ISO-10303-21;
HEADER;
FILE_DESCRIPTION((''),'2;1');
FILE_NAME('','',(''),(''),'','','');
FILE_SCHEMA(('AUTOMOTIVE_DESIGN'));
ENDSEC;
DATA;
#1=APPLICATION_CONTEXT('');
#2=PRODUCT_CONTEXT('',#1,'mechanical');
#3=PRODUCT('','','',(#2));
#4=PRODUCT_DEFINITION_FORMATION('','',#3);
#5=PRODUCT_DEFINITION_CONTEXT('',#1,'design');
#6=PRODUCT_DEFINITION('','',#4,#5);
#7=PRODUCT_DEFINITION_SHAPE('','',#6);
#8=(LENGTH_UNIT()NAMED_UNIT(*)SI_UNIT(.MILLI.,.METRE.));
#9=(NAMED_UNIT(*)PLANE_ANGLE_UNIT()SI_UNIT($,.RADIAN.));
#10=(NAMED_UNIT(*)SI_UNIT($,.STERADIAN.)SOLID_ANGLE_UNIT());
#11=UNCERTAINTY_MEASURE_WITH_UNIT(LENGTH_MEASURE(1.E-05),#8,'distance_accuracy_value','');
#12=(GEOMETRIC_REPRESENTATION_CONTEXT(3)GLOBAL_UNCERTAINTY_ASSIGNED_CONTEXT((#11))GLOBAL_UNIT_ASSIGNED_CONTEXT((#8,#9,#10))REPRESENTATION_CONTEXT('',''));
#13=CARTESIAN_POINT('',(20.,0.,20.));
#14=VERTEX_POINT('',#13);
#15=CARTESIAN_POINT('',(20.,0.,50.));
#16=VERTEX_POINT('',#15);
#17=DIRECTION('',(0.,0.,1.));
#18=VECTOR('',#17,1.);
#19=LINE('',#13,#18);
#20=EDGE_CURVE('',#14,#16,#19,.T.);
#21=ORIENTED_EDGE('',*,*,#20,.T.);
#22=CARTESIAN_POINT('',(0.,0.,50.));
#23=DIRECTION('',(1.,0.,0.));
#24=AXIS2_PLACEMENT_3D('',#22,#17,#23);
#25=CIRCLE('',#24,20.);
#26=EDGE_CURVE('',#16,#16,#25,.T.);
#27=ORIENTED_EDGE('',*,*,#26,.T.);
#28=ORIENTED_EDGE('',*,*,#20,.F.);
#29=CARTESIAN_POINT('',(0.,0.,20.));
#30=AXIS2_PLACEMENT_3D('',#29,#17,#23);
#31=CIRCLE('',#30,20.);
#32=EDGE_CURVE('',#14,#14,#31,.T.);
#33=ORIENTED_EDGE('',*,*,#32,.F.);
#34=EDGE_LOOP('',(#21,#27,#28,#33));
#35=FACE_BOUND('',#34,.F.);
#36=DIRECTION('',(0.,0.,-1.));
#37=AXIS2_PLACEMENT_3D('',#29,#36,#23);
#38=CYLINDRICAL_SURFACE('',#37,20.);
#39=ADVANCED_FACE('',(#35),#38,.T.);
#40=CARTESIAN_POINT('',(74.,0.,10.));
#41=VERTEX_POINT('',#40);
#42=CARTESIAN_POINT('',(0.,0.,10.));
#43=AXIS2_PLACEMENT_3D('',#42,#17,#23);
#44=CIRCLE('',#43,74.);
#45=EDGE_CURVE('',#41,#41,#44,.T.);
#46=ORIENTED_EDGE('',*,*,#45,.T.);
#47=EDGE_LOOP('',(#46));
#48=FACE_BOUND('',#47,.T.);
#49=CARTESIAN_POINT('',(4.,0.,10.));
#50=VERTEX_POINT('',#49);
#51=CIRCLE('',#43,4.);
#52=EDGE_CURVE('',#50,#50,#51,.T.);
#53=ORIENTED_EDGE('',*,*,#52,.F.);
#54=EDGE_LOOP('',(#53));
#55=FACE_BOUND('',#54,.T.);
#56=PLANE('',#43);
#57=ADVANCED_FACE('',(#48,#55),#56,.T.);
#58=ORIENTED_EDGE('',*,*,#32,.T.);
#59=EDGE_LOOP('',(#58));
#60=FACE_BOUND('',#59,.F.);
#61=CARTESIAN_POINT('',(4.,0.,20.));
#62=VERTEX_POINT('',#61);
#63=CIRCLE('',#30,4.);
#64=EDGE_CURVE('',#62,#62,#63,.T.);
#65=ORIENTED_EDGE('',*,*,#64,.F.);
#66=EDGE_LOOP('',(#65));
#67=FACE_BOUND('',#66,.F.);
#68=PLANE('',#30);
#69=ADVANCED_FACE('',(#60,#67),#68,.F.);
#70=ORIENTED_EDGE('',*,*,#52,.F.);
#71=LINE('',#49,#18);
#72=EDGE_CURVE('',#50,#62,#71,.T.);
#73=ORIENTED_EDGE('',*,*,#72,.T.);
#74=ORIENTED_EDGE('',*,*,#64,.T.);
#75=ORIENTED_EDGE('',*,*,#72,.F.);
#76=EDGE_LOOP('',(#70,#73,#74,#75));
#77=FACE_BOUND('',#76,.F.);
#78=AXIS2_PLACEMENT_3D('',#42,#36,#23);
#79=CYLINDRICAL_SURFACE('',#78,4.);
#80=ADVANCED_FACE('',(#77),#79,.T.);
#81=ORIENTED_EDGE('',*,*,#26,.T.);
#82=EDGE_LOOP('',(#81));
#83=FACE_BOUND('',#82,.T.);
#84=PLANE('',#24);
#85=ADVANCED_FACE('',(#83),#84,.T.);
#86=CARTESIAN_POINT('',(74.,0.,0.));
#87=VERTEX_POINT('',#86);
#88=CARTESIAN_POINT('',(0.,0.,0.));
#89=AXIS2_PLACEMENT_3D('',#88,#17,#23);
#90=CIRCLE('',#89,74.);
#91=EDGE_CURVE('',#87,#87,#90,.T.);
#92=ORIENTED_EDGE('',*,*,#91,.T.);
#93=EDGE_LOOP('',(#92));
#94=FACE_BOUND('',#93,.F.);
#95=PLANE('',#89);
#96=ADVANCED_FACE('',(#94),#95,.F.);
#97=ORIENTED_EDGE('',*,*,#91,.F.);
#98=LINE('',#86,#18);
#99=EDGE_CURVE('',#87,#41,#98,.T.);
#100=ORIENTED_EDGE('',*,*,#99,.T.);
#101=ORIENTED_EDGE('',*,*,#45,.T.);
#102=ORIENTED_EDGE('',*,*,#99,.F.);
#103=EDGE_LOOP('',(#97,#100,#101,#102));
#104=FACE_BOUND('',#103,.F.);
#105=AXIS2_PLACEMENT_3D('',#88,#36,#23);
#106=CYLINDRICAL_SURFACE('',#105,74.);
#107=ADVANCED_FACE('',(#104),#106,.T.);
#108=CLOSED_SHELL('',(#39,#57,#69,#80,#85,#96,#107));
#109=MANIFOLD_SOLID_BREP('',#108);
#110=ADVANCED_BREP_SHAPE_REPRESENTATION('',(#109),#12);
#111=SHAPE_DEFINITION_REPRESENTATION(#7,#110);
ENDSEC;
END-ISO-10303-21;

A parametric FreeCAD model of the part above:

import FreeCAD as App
import Part
import Sketcher

V = App.Vector
Q = App.Units.Quantity

doc = App.newDocument("Part")
body = doc.addObject("PartDesign::Body", "Body")

# Sketch on XY plane
sketch1 = body.newObject("Sketcher::SketchObject", "Sketch")
sketch1.AttachmentSupport = (doc.getObject("XY_Plane"), [""])
sketch1.MapMode = "FlatFace"
sketch1.addGeometry(Part.Circle(V(0, 0, 0), V(0, 0, 1), 74), False)
sketch1.addConstraint([
    Sketcher.Constraint("Coincident", 0, 3, -1, 1),
    Sketcher.Constraint("Diameter", 0, Q("148 mm")),
])
pad1 = body.newObject("PartDesign::Pad", "Pad")
pad1.Profile = sketch1
pad1.Length = 10

# Sketch on XY plane
sketch2 = body.newObject("Sketcher::SketchObject", "Sketch001")
sketch2.AttachmentSupport = (doc.getObject("XY_Plane"), [""])
sketch2.MapMode = "FlatFace"
sketch2.AttachmentOffset = App.Placement(V(0, 0, 10), App.Rotation())
sketch2.addGeometry(Part.Circle(V(0, 0, 0), V(0, 0, 1), 4), False)
sketch2.addConstraint([
    Sketcher.Constraint("Coincident", 0, 3, -1, 1),
    Sketcher.Constraint("Diameter", 0, Q("8 mm")),
])
pad2 = body.newObject("PartDesign::Pad", "Pad001")
pad2.Profile = sketch2
pad2.Length = 10

# Sketch on XY plane
sketch3 = body.newObject("Sketcher::SketchObject", "Sketch002")
sketch3.AttachmentSupport = (doc.getObject("XY_Plane"), [""])
sketch3.MapMode = "FlatFace"
sketch3.AttachmentOffset = App.Placement(V(0, 0, 20), App.Rotation())
sketch3.addGeometry(Part.Circle(V(0, 0, 0), V(0, 0, 1), 20), False)
sketch3.addConstraint([
    Sketcher.Constraint("Coincident", 0, 3, -1, 1),
    Sketcher.Constraint("Diameter", 0, Q("40 mm")),
])
pad3 = body.newObject("PartDesign::Pad", "Pad002")
pad3.Profile = sketch3
pad3.Length = 30

doc.recompute()
